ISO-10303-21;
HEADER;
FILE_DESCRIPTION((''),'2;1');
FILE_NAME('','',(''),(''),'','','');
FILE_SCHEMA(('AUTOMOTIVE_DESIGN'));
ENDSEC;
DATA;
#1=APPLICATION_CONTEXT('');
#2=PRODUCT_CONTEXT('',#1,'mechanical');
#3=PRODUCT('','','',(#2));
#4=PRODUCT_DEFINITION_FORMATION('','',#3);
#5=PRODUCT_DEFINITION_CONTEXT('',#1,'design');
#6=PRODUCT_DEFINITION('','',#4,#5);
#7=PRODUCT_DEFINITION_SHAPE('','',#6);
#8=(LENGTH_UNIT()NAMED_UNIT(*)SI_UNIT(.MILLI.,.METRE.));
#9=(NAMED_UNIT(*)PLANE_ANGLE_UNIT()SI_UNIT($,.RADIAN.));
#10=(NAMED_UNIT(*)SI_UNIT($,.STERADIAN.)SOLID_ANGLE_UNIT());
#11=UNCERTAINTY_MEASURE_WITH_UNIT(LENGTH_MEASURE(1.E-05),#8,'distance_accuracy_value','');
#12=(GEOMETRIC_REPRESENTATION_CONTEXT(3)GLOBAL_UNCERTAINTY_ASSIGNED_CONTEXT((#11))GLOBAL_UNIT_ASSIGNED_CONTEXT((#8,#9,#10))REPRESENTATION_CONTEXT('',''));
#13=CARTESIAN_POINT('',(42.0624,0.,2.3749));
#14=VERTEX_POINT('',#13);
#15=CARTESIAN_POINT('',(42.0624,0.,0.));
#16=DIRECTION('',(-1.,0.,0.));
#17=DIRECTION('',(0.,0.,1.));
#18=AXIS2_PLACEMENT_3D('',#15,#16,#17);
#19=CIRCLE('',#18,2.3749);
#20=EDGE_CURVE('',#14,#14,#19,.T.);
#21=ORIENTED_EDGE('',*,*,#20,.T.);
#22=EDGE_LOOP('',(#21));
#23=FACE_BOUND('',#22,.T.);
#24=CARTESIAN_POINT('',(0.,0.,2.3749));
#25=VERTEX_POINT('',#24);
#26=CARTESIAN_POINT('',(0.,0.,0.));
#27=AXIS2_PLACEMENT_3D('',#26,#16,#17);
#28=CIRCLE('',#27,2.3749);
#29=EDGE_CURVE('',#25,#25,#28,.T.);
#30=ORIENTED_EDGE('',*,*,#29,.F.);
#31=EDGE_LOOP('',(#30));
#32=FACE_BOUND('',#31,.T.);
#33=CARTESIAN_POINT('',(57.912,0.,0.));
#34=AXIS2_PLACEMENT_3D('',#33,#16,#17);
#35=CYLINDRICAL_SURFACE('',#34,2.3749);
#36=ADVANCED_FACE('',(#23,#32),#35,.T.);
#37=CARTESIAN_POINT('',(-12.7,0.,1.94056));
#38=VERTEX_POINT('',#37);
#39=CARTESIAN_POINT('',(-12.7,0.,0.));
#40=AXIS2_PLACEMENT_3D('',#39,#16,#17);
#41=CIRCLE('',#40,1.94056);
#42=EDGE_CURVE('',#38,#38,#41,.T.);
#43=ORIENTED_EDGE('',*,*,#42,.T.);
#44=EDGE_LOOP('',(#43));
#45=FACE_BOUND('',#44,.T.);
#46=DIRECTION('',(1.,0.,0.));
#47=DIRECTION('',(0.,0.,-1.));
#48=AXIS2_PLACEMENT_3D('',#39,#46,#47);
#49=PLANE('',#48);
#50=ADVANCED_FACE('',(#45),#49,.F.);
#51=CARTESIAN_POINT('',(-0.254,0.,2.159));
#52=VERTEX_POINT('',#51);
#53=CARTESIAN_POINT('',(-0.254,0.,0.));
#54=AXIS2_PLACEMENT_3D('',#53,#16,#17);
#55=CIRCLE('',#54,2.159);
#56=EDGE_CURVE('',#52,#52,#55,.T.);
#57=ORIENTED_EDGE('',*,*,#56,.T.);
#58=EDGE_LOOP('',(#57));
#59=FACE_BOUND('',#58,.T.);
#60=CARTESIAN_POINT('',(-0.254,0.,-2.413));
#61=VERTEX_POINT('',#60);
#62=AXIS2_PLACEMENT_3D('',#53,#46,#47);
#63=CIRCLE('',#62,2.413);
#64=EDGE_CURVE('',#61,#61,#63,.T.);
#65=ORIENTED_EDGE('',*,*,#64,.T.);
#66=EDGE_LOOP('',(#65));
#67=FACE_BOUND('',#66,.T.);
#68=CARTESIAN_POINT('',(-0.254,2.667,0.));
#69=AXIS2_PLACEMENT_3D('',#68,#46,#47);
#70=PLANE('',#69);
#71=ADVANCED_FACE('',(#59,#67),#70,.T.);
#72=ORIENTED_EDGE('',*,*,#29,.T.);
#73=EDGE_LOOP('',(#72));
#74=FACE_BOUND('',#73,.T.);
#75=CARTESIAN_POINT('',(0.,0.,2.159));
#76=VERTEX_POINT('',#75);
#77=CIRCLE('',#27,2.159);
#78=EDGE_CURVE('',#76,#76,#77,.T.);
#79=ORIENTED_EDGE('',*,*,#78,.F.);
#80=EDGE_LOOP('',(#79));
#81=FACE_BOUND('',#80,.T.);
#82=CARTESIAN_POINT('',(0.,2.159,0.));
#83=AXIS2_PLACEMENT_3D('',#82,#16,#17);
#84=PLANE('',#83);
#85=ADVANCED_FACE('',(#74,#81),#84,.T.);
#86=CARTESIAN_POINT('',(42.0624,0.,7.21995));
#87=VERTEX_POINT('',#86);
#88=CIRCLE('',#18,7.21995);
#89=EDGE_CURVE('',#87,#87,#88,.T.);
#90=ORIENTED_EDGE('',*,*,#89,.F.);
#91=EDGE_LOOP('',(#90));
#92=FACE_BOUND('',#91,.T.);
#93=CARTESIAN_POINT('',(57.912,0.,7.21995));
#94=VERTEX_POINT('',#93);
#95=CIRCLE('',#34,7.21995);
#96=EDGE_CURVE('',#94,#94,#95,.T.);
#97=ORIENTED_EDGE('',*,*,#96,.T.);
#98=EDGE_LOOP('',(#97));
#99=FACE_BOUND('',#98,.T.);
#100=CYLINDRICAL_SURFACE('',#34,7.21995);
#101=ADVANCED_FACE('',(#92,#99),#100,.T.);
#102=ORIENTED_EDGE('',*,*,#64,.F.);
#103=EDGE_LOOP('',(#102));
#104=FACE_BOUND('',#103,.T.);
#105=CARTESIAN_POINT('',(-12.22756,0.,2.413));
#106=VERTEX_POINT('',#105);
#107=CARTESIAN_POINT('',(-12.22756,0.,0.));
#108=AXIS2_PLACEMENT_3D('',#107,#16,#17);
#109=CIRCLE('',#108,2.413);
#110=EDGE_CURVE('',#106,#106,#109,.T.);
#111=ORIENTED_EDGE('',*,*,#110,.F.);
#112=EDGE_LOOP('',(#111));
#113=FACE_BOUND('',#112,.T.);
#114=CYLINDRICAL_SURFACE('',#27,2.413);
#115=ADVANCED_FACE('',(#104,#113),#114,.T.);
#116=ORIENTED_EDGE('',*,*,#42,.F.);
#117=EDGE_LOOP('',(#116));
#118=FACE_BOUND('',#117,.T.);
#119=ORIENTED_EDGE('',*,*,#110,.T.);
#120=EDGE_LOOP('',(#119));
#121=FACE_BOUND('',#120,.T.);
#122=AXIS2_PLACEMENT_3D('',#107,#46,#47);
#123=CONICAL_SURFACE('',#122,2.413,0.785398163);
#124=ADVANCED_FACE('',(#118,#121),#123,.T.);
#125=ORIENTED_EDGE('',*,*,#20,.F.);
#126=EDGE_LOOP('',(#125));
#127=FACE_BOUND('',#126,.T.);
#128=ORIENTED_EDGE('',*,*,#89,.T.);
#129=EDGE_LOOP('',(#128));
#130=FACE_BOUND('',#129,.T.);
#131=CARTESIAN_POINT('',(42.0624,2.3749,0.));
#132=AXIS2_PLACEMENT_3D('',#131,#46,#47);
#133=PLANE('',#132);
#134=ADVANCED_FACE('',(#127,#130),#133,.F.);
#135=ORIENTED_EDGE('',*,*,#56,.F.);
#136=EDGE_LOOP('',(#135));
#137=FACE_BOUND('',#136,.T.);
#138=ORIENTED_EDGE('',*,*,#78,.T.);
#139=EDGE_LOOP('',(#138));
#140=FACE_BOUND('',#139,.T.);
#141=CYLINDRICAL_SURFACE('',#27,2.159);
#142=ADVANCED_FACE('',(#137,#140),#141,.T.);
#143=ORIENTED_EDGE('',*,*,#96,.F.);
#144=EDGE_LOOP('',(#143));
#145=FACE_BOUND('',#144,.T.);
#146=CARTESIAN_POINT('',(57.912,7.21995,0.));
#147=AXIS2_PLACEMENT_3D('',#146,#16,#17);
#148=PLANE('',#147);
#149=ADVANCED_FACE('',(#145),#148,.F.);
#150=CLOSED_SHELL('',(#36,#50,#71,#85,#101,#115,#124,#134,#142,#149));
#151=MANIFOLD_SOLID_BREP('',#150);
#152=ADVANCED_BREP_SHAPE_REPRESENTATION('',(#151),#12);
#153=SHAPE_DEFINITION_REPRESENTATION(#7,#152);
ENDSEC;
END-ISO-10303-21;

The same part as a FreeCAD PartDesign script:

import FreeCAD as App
import Part
import Sketcher
from FreeCAD import Vector
Q = App.Units.Quantity

doc = App.newDocument("Part")
body = doc.addObject("PartDesign::Body", "Body")

sketch1 = body.newObject("Sketcher::SketchObject", "Sketch")
sketch1.AttachmentSupport = (doc.getObject("XY_Plane"), [""])
sketch1.MapMode = "FlatFace"
sketch1.addGeometry([
    Part.LineSegment(Vector(0, 2.4, 0), Vector(0, 0, 0)),
    Part.LineSegment(Vector(0, 0, 0), Vector(57.9, 0, 0)),
    Part.LineSegment(Vector(57.9, 0, 0), Vector(57.9, 7.2, 0)),
    Part.LineSegment(Vector(57.9, 7.2, 0), Vector(42.1, 7.2, 0)),
    Part.LineSegment(Vector(42.1, 7.2, 0), Vector(42.1, 2.4, 0)),
    Part.LineSegment(Vector(42.1, 2.4, 0), Vector(0, 2.4, 0)),
], False)
sketch1.addConstraint([
    Sketcher.Constraint("Coincident", 0, 2, 1, 1),
    Sketcher.Constraint("Coincident", 1, 2, 2, 1),
    Sketcher.Constraint("Coincident", 2, 2, 3, 1),
    Sketcher.Constraint("Coincident", 3, 2, 4, 1),
    Sketcher.Constraint("Coincident", 4, 2, 5, 1),
    Sketcher.Constraint("Coincident", 5, 2, 0, 1),
    Sketcher.Constraint("Vertical", 0),
    Sketcher.Constraint("Horizontal", 1),
    Sketcher.Constraint("Vertical", 2),
    Sketcher.Constraint("Horizontal", 3),
    Sketcher.Constraint("Vertical", 4),
    Sketcher.Constraint("Horizontal", 5),
    Sketcher.Constraint("Coincident", 0, 2, -1, 1),
    Sketcher.Constraint("DistanceX", 1, 1, 1, 2, Q("2.28 in")),
    Sketcher.Constraint("DistanceX", 3, 2, 3, 1, Q("0.624 in")),
    Sketcher.Constraint("DistanceY", 0, 2, 0, 1, Q("0.0935 in")),
    Sketcher.Constraint("DistanceY", 2, 1, 2, 2, 7.21995),
])
revolution = body.newObject("PartDesign::Revolution", "Revolution")
revolution.Profile = sketch1
revolution.ReferenceAxis = (sketch1, ["H_Axis"])
revolution.Angle = 360

sketch2 = body.newObject("Sketcher::SketchObject", "Sketch001")
sketch2.AttachmentSupport = (doc.getObject("XY_Plane"), [""])
sketch2.MapMode = "FlatFace"
sketch2.addGeometry([
    Part.LineSegment(Vector(-12.7, 1.9, 0), Vector(-12.7, 0, 0)),
    Part.LineSegment(Vector(-12.7, 0, 0), Vector(0, 0, 0)),
    Part.LineSegment(Vector(0, 0, 0), Vector(0, 2.4, 0)),
    Part.LineSegment(Vector(0, 2.4, 0), Vector(-12.2, 2.4, 0)),
    Part.LineSegment(Vector(-12.2, 2.4, 0), Vector(-12.7, 1.9, 0)),
], False)
sketch2.addConstraint([
    Sketcher.Constraint("Coincident", 0, 2, 1, 1),
    Sketcher.Constraint("Coincident", 1, 2, 2, 1),
    Sketcher.Constraint("Coincident", 2, 2, 3, 1),
    Sketcher.Constraint("Coincident", 3, 2, 4, 1),
    Sketcher.Constraint("Coincident", 4, 2, 0, 1),
    Sketcher.Constraint("Vertical", 0),
    Sketcher.Constraint("Horizontal", 1),
    Sketcher.Constraint("Vertical", 2),
    Sketcher.Constraint("Horizontal", 3),
    Sketcher.Constraint("Coincident", 1, 2, -1, 1),
    Sketcher.Constraint("DistanceX", 1, 1, 1, 2, Q("0.5 in")),
    Sketcher.Constraint("Angle", 4, Q("-135 deg")),
    Sketcher.Constraint("DistanceY", 2, 1, 2, 2, Q("0.095 in")),
    Sketcher.Constraint("DistanceX", 3, 2, 3, 1, Q("0.4814 in")),
])
revolution2 = body.newObject("PartDesign::Revolution", "Revolution001")
revolution2.Profile = sketch2
revolution2.ReferenceAxis = (sketch2, ["H_Axis"])
revolution2.Angle = 360

sketch3 = body.newObject("Sketcher::SketchObject", "Sketch002")
sketch3.AttachmentSupport = (doc.getObject("XY_Plane"), [""])
sketch3.MapMode = "FlatFace"
sketch3.addGeometry([
    Part.LineSegment(Vector(-0.25, 2.67, 0), Vector(-0.25, 2.16, 0)),
    Part.LineSegment(Vector(-0.25, 2.16, 0), Vector(0, 2.16, 0)),
    Part.LineSegment(Vector(0, 2.16, 0), Vector(0, 2.67, 0)),
    Part.LineSegment(Vector(0, 2.67, 0), Vector(-0.25, 2.67, 0)),
], False)
sketch3.addConstraint([
    Sketcher.Constraint("Coincident", 0, 2, 1, 1),
    Sketcher.Constraint("Coincident", 1, 2, 2, 1),
    Sketcher.Constraint("Coincident", 2, 2, 3, 1),
    Sketcher.Constraint("Coincident", 3, 2, 0, 1),
    Sketcher.Constraint("Vertical", 0),
    Sketcher.Constraint("Horizontal", 1),
    Sketcher.Constraint("Vertical", 2),
    Sketcher.Constraint("Horizontal", 3),
    Sketcher.Constraint("PointOnObject", 1, 2, -2),
    Sketcher.Constraint("DistanceX", 1, 1, 1, 2, Q("0.01 in")),
    Sketcher.Constraint("DistanceY", 0, 2, 0, 1, Q("0.02 in")),
    Sketcher.Constraint("DistanceY", -1, 1, 0, 2, Q("0.085 in")),
])
groove = body.newObject("PartDesign::Groove", "Groove")
groove.Profile = sketch3
groove.ReferenceAxis = (sketch3, ["H_Axis"])
groove.Angle = 360

doc.recompute()
